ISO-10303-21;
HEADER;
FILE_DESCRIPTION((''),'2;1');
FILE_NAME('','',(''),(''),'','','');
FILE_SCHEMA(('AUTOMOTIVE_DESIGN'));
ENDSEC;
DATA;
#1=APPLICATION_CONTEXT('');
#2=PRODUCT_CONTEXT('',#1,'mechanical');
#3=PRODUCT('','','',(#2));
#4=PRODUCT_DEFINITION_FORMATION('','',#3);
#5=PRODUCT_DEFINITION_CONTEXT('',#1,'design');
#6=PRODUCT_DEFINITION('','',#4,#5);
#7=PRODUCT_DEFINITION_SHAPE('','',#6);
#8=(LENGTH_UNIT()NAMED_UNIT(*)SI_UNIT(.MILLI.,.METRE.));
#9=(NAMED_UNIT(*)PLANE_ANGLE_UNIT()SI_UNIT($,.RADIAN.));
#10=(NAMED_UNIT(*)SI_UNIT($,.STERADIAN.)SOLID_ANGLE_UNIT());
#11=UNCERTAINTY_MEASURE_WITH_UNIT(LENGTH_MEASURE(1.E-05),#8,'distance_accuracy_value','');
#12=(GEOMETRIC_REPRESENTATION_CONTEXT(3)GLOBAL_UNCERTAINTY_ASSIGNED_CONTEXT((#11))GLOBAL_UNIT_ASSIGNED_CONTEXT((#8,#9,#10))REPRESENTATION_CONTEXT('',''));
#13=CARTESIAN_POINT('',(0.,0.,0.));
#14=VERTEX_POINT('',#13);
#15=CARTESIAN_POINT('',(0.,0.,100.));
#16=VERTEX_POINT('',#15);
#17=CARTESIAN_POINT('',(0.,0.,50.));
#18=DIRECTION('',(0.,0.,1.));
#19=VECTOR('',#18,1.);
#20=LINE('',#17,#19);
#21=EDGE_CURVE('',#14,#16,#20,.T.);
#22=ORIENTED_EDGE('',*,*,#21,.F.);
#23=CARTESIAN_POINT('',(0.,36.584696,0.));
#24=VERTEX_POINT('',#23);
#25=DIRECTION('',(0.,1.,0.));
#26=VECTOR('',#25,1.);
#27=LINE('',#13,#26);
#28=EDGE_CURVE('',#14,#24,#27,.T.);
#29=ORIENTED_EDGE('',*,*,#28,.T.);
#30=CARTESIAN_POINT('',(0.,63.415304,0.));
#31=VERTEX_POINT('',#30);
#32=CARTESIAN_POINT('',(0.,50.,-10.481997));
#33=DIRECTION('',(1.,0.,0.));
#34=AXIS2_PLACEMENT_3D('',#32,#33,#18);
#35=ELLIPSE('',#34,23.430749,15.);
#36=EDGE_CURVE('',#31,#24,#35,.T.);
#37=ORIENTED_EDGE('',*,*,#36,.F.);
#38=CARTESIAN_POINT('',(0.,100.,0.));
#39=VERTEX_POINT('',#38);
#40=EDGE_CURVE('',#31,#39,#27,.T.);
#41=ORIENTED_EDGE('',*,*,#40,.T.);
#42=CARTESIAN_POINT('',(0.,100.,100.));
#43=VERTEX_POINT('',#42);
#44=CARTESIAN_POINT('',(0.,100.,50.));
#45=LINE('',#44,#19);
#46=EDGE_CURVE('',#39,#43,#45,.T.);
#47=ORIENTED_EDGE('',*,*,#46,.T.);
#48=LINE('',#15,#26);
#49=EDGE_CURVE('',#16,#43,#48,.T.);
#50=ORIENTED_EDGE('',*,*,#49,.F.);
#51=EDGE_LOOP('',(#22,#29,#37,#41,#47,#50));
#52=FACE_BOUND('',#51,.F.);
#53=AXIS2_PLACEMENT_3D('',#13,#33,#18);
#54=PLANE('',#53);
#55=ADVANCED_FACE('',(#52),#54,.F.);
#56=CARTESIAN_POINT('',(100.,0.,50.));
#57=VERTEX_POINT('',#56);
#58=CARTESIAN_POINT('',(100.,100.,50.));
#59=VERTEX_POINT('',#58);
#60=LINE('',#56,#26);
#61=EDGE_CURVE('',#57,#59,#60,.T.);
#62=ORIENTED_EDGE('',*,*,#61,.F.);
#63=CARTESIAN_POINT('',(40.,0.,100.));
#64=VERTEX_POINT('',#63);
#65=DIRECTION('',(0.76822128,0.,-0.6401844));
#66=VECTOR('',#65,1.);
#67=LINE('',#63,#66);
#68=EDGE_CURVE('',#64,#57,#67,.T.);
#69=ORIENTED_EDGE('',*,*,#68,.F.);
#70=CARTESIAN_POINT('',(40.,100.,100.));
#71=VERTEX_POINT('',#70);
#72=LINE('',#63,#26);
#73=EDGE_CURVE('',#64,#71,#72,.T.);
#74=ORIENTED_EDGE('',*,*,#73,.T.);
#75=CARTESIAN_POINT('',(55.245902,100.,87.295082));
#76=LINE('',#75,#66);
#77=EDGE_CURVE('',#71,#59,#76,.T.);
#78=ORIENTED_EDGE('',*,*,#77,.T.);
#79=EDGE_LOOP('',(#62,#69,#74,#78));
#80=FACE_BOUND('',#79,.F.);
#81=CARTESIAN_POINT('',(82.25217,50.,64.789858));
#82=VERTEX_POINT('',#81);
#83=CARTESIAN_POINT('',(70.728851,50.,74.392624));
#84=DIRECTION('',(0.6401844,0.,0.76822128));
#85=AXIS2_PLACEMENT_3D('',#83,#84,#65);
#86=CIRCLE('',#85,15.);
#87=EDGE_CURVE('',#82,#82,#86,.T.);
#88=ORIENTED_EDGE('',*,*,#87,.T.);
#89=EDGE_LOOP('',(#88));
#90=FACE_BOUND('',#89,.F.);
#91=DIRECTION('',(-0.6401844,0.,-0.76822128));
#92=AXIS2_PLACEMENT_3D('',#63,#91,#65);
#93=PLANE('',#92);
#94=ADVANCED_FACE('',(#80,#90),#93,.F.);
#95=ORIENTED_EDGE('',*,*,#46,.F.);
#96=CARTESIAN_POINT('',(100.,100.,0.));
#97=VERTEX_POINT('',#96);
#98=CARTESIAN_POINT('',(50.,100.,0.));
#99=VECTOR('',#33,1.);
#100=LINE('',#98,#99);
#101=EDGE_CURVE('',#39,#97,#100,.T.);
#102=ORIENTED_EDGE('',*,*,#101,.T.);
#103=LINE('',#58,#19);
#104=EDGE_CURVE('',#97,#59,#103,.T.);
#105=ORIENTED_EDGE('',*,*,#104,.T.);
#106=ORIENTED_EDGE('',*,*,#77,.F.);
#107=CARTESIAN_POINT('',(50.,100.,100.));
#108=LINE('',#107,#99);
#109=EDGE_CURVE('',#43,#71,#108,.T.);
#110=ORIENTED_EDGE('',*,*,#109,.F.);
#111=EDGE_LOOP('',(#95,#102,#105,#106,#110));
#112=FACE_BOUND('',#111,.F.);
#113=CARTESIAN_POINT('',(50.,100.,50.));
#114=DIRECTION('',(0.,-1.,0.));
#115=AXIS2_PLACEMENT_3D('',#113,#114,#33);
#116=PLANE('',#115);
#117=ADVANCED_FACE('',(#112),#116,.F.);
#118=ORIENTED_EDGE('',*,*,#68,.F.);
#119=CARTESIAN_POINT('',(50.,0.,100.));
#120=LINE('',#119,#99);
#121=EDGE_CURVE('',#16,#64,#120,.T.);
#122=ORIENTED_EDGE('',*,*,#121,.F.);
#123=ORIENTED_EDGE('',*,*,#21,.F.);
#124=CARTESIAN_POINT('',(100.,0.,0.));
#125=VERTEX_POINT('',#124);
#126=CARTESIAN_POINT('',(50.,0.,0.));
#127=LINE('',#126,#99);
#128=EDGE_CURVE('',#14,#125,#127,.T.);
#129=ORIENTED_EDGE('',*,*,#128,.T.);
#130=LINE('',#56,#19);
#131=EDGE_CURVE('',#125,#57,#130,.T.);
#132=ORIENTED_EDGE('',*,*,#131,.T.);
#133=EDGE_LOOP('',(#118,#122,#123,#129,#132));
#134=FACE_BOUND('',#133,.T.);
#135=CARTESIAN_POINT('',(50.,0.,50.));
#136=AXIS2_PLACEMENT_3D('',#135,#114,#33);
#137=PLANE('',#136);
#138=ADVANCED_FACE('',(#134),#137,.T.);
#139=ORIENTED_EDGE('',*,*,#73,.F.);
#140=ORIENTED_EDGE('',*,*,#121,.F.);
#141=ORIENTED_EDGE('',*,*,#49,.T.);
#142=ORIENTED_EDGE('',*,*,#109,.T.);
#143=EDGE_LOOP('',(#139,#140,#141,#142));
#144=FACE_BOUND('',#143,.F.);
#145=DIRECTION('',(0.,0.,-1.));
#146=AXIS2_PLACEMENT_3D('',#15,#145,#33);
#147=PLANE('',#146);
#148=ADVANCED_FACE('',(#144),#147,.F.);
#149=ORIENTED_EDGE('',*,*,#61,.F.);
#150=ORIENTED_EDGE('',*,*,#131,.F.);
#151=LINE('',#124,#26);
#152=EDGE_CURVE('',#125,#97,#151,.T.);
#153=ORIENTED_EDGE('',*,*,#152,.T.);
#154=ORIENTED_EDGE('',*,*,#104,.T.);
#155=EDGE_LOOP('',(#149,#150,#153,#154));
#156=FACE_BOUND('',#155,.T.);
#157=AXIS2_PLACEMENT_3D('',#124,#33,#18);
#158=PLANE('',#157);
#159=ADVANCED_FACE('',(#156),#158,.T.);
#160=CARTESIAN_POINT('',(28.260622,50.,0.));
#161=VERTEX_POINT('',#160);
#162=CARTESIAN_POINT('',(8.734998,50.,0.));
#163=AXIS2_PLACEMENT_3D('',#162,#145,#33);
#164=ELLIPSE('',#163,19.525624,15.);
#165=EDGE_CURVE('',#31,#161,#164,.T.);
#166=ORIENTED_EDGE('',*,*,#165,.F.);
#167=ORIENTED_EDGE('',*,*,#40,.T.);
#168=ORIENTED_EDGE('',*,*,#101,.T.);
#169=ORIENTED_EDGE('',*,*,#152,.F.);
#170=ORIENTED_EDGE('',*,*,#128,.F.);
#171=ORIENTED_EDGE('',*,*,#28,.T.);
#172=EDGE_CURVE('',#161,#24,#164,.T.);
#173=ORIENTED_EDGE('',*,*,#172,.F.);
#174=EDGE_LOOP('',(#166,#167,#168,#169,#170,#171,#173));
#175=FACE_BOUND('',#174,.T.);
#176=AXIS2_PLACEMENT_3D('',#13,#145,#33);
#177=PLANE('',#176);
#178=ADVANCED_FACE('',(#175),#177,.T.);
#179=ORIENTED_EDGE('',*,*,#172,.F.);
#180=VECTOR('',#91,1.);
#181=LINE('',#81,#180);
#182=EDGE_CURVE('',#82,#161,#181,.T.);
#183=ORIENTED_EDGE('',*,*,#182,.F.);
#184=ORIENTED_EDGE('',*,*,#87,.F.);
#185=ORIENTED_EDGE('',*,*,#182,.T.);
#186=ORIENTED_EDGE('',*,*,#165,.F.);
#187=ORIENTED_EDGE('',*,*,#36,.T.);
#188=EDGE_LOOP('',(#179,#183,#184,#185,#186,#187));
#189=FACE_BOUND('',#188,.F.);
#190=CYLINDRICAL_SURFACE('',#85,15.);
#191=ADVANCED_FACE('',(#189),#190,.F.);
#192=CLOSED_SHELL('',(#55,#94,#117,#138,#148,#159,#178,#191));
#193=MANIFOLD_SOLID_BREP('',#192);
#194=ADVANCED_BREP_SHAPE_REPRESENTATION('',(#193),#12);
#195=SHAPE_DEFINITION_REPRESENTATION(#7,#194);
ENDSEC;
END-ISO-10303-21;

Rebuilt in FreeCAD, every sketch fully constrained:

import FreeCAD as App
import Part
import Sketcher
Q = App.Units.Quantity


def add_polygon(sketch, points):
    """Adds a closed chain of lines whose ends are joined by coincident constraints."""
    first, n = sketch.GeometryCount, len(points)
    for a, b in zip(points, points[1:] + points[:1]):
        sketch.addGeometry(Part.LineSegment(App.Vector(*a, 0), App.Vector(*b, 0)), False)
    for i in range(n):
        sketch.addConstraint(Sketcher.Constraint("Coincident", first + i, 2, first + (i + 1) % n, 1))

doc = App.newDocument("Part")
body = doc.addObject("PartDesign::Body", "Body")

sketch1 = doc.addObject("Sketcher::SketchObject", "Sketch")
body.addObject(sketch1)
sketch1.AttachmentSupport = (doc.XZ_Plane, [""])
sketch1.MapMode = "FlatFace"
add_polygon(sketch1, [(0, 100), (0, 0), (100, 0), (100, 100)])
sketch1.addConstraint([
    Sketcher.Constraint("Vertical", 0),
    Sketcher.Constraint("Horizontal", 1),
    Sketcher.Constraint("Vertical", 2),
    Sketcher.Constraint("Horizontal", 3),
    Sketcher.Constraint("Coincident", 0, 2, -1, 1),
    Sketcher.Constraint("Equal", 3, 0),
    Sketcher.Constraint("DistanceX", 1, 1, 1, 2, Q("100 mm")),
])
pad1 = doc.addObject("PartDesign::Pad", "Pad")
body.addObject(pad1)
pad1.Profile = sketch1
pad1.Length = 100
pad1.Reversed = True

sketch2 = doc.addObject("Sketcher::SketchObject", "Sketch001")
body.addObject(sketch2)
sketch2.AttachmentSupport = (doc.XZ_Plane, [""])
sketch2.MapMode = "FlatFace"
add_polygon(sketch2, [(40, 110), (40, 100), (100, 50), (110, 50), (110, 110)])
sketch2.addConstraint([
    Sketcher.Constraint("Vertical", 0),
    Sketcher.Constraint("Horizontal", 2),
    Sketcher.Constraint("Vertical", 3),
    Sketcher.Constraint("Horizontal", 4),
    Sketcher.Constraint("Equal", 2, 0),
    Sketcher.Constraint("DistanceX", 2, 1, 2, 2, Q("10 mm")),
    Sketcher.Constraint("DistanceX", 4, 2, 4, 1, Q("70 mm")),
    Sketcher.Constraint("DistanceY", 3, 1, 3, 2, Q("60 mm")),
    Sketcher.Constraint("DistanceX", -1, 1, 0, 2, Q("40 mm")),
    Sketcher.Constraint("DistanceY", -1, 1, 0, 2, Q("100 mm")),
])
pocket1 = doc.addObject("PartDesign::Pocket", "Pocket")
body.addObject(pocket1)
pocket1.Profile = sketch2
pocket1.Type = "ThroughAll"

sketch3 = doc.addObject("Sketcher::SketchObject", "Sketch002")
body.addObject(sketch3)
sketch3.Placement = App.Placement(App.Vector(65.57377, 0, 78.688525), App.Rotation(App.Vector(0.76822128, 0, -0.6401844), App.Vector(0, 1.000000001, 0), App.Vector(0.6401844, 0, 0.76822128), "ZXY"))
sketch3.addGeometry(Part.Circle(App.Vector(7, 50, 0), App.Vector(0, 0, 1), 15), False)
sketch3.addConstraint([
    Sketcher.Constraint("Diameter", 0, Q("30 mm")),
    Sketcher.Constraint("DistanceY", -1, 1, 0, 3, Q("50 mm")),
    Sketcher.Constraint("DistanceX", -1, 1, 0, 3, Q("6.710411 mm")),
])
pocket2 = doc.addObject("PartDesign::Pocket", "Pocket001")
body.addObject(pocket2)
pocket2.Profile = sketch3
pocket2.Type = "ThroughAll"

doc.recompute()
